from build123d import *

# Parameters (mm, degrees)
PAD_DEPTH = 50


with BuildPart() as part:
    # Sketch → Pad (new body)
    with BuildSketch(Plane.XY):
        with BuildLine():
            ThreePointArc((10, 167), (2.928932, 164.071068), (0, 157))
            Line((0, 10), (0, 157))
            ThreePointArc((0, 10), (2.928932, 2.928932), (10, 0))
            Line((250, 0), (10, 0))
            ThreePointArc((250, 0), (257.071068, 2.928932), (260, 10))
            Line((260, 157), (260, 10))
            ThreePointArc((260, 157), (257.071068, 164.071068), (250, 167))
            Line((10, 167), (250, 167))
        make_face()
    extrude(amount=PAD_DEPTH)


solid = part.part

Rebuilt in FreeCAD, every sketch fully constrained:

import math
import FreeCAD as App
import Part
import Sketcher

V = App.Vector

doc = App.newDocument("Part")
body = doc.addObject("PartDesign::Body", "Body")

# Sketch on XY plane
sketch1 = body.newObject("Sketcher::SketchObject", "Sketch")
sketch1.AttachmentSupport = (doc.getObject("XY_Plane"), [""])
sketch1.MapMode = "FlatFace"
sketch1.addGeometry(Part.ArcOfCircle(Part.Circle(V(10, 157, 0), V(0, 0, 1), 10), math.radians(90), math.radians(180)), False)
sketch1.addGeometry(Part.LineSegment(V(0, 157, 0), V(0, 10, 0)), False)
sketch1.addGeometry(Part.ArcOfCircle(Part.Circle(V(10, 10, 0), V(0, 0, 1), 10), math.radians(180), math.radians(270)), False)
sketch1.addGeometry(Part.LineSegment(V(10, 0, 0), V(250, 0, 0)), False)
sketch1.addGeometry(Part.ArcOfCircle(Part.Circle(V(250, 10, 0), V(0, 0, 1), 10), math.radians(-90), math.radians(0)), False)
sketch1.addGeometry(Part.LineSegment(V(260, 10, 0), V(260, 157, 0)), False)
sketch1.addGeometry(Part.ArcOfCircle(Part.Circle(V(250, 157, 0), V(0, 0, 1), 10), math.radians(0), math.radians(90)), False)
sketch1.addGeometry(Part.LineSegment(V(250, 167, 0), V(10, 167, 0)), False)
sketch1.addConstraint(Sketcher.Constraint("Tangent", 0, 2, 1, 1))
sketch1.addConstraint(Sketcher.Constraint("Tangent", 1, 2, 2, 1))
sketch1.addConstraint(Sketcher.Constraint("Tangent", 2, 2, 3, 1))
sketch1.addConstraint(Sketcher.Constraint("Tangent", 3, 2, 4, 1))
sketch1.addConstraint(Sketcher.Constraint("Tangent", 4, 2, 5, 1))
sketch1.addConstraint(Sketcher.Constraint("Tangent", 5, 2, 6, 1))
sketch1.addConstraint(Sketcher.Constraint("Tangent", 6, 2, 7, 1))
sketch1.addConstraint(Sketcher.Constraint("Tangent", 7, 2, 0, 1))
sketch1.addConstraint(Sketcher.Constraint("Vertical", 1))
sketch1.addConstraint(Sketcher.Constraint("Horizontal", 3))
sketch1.addConstraint(Sketcher.Constraint("Vertical", 5))
sketch1.addConstraint(Sketcher.Constraint("Horizontal", 7))
sketch1.addConstraint(Sketcher.Constraint("Equal", 0, 2))
sketch1.addConstraint(Sketcher.Constraint("Equal", 2, 4))
sketch1.addConstraint(Sketcher.Constraint("Equal", 4, 6))
sketch1.addConstraint(Sketcher.Constraint("PointOnObject", 0, 2, -2))
sketch1.addConstraint(Sketcher.Constraint("PointOnObject", 2, 2, -1))
sketch1.addConstraint(Sketcher.Constraint("Radius", 0, 9.999999))
sketch1.addConstraint(Sketcher.Constraint("DistanceX", 3, 1, 3, 2, 240.0))
sketch1.addConstraint(Sketcher.Constraint("DistanceY", 1, 2, 1, 1, 147.0))
pad1 = body.newObject("PartDesign::Pad", "Pad")
pad1.Profile = sketch1
pad1.Length = 50

doc.recompute()
